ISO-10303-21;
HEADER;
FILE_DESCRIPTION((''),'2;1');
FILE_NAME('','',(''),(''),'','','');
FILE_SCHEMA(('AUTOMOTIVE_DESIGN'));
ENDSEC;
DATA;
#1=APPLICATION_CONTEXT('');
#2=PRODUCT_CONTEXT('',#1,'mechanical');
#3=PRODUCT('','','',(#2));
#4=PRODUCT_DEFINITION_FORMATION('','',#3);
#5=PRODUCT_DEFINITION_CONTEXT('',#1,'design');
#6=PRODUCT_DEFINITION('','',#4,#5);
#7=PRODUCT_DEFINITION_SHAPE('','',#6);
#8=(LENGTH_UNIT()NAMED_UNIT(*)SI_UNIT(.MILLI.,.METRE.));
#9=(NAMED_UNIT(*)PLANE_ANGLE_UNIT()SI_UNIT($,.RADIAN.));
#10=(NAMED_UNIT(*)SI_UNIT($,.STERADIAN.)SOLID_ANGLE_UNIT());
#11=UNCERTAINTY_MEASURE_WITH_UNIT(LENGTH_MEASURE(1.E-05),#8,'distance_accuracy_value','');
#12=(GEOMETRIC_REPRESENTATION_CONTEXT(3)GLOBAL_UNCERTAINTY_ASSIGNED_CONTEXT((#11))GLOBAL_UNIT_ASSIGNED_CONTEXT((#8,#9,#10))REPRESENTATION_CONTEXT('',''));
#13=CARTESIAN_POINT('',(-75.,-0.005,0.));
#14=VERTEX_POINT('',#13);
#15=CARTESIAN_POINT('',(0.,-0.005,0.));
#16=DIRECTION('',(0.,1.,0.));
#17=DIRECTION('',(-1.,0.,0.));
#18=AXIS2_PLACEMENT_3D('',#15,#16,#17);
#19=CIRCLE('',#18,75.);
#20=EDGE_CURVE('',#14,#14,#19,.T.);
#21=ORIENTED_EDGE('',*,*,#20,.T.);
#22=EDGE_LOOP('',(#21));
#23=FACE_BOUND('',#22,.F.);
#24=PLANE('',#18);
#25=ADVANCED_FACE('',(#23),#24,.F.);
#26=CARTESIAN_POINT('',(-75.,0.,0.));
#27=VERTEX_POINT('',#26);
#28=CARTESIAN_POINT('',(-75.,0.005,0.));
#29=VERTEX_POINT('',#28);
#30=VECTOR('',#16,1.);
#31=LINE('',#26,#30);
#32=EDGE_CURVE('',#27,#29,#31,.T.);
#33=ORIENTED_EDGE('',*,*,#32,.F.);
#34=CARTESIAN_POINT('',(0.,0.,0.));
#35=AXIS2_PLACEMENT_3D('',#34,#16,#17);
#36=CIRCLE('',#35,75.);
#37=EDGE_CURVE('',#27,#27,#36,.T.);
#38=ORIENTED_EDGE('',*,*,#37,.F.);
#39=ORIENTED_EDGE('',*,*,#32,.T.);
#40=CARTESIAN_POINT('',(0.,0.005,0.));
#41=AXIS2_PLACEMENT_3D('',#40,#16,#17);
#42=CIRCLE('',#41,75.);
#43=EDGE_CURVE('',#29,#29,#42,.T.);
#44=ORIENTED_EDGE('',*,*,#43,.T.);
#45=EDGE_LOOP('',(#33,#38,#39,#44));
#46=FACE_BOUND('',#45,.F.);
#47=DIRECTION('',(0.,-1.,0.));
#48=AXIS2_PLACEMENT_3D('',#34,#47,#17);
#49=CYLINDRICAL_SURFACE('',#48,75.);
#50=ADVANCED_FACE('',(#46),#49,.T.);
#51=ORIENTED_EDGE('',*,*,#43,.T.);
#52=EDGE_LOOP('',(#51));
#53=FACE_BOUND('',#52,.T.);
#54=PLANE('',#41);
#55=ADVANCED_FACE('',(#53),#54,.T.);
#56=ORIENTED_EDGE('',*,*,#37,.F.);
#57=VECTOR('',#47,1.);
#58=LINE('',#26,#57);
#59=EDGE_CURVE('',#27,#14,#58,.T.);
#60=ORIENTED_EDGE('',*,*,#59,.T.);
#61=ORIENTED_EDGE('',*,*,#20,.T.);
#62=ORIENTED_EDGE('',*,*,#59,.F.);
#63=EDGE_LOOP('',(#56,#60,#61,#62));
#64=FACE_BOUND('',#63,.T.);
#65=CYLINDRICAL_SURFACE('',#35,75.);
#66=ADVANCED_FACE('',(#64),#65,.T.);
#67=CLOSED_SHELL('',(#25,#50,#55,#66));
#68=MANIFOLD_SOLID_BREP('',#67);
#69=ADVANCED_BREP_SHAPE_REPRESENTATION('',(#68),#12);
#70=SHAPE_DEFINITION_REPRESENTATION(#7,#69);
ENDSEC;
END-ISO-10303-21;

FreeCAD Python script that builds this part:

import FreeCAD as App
import Part
import Sketcher

V = App.Vector
Q = App.Units.Quantity

doc = App.newDocument("Part")
body = doc.addObject("PartDesign::Body", "Body")

sketch1 = body.newObject("Sketcher::SketchObject", "Sketch")
sketch1.AttachmentSupport = (doc.getObject("XZ_Plane"), [""])
sketch1.MapMode = "FlatFace"
sketch1.addGeometry(Part.Circle(V(0, 0, 0), V(0, 0, 1), 75), False)
sketch1.addConstraint(Sketcher.Constraint("Coincident", 0, 3, -1, 1))
sketch1.addConstraint(Sketcher.Constraint("Diameter", 0, Q("150 mm")))
pad1 = body.newObject("PartDesign::Pad", "Pad")
pad1.Profile = sketch1
pad1.Length = 0.01
pad1.Midplane = True

doc.recompute()
